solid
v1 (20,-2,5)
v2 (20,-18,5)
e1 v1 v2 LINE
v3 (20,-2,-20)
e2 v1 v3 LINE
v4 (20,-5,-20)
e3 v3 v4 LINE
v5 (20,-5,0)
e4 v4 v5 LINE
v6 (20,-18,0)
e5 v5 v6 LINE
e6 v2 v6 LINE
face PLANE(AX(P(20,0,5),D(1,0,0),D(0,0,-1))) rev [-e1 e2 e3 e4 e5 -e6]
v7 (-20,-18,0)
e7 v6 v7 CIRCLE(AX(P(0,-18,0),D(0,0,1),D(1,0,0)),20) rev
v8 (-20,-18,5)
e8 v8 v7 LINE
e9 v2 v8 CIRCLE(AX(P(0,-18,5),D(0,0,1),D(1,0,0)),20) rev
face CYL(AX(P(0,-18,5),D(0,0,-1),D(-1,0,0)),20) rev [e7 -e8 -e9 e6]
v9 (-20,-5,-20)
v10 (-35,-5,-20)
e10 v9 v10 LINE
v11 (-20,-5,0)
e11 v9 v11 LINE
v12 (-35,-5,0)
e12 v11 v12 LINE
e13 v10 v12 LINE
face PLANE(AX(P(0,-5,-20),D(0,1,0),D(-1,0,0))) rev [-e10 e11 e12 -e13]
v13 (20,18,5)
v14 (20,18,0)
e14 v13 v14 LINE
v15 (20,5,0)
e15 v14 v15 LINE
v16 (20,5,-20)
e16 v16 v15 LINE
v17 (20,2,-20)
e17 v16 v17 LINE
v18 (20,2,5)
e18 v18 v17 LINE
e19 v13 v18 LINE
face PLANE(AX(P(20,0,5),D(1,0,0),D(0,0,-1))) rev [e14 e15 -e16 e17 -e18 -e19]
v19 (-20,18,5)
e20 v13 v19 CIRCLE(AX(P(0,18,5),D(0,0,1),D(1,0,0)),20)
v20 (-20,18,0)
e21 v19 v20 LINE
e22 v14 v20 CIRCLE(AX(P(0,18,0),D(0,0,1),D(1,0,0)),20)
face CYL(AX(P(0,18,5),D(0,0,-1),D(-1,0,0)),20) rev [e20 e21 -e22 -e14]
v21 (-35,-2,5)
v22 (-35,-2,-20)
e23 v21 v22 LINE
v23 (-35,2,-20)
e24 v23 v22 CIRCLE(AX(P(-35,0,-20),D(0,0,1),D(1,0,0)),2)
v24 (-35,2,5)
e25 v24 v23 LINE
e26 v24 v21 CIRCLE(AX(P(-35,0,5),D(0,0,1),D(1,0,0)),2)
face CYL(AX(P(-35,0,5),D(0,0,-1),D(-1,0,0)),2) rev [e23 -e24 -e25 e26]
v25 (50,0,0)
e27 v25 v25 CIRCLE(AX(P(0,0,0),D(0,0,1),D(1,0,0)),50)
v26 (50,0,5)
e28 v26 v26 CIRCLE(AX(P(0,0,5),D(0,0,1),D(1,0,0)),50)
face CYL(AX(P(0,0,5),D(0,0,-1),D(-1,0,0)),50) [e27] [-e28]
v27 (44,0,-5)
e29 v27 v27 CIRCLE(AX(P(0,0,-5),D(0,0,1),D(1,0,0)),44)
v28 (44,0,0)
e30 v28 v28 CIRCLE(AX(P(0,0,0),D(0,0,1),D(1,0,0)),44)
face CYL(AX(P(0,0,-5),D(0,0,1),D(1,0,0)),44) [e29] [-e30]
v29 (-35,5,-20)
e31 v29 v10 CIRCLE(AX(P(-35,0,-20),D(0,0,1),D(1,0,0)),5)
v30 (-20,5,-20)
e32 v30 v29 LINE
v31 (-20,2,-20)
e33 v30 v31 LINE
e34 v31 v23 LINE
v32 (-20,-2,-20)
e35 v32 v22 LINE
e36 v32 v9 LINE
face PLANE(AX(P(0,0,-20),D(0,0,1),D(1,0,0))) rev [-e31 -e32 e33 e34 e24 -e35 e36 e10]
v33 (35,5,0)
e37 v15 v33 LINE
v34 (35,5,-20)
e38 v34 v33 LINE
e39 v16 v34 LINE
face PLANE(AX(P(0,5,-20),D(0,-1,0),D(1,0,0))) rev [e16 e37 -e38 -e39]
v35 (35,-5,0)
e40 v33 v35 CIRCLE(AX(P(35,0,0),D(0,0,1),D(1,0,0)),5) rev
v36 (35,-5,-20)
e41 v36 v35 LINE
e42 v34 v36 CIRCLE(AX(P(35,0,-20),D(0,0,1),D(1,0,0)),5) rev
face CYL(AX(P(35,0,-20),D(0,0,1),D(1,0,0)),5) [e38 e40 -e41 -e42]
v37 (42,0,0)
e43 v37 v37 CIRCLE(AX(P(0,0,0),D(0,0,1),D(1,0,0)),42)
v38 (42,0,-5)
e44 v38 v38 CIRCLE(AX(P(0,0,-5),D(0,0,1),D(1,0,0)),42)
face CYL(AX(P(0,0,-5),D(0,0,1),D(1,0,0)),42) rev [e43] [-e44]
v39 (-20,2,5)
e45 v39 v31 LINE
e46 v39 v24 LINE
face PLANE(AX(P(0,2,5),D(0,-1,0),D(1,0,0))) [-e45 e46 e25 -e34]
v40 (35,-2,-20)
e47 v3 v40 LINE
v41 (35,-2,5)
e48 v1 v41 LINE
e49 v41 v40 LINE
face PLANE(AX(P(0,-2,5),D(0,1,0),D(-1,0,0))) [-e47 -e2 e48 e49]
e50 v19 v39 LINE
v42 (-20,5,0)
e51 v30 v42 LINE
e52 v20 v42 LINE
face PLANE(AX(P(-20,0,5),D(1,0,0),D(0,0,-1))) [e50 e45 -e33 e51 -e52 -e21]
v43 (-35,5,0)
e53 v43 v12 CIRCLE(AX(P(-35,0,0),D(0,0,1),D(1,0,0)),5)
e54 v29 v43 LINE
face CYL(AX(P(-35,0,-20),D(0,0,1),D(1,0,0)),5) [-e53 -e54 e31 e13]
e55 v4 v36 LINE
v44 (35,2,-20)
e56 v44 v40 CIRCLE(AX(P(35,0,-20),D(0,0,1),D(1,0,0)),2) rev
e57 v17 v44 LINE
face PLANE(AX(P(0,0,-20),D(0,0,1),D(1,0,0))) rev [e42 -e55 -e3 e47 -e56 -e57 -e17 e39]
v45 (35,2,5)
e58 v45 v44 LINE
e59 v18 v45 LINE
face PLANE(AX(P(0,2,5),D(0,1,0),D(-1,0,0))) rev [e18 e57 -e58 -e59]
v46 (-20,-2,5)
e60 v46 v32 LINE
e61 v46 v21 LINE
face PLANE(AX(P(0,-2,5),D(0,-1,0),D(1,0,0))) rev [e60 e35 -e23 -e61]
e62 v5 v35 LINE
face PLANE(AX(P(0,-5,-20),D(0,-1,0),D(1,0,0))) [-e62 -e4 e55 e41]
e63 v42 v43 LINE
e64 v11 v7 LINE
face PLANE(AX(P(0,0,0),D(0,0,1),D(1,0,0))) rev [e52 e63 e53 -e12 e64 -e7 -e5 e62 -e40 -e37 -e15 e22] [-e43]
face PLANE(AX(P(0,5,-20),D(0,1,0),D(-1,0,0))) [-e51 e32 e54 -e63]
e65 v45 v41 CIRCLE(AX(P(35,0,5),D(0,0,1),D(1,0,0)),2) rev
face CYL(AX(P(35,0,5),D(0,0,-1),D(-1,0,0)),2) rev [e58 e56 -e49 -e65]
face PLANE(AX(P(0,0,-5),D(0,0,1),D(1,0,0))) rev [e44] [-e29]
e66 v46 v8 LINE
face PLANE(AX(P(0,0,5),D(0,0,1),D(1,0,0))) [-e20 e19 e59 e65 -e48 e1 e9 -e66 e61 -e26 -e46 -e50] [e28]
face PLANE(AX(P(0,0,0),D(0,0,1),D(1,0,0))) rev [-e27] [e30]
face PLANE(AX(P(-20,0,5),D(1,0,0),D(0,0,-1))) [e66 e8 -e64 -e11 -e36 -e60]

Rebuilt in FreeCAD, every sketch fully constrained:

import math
import FreeCAD as App
import Part
import Sketcher
from FreeCAD import Vector

doc = App.newDocument("Part")
body = doc.addObject("PartDesign::Body", "Body")

sketch1 = body.newObject("Sketcher::SketchObject", "Sketch")
sketch1.AttachmentSupport = (doc.getObject("XY_Plane"), [""])
sketch1.MapMode = "FlatFace"
sketch1.addGeometry(Part.Circle(Vector(0, 0, 0), Vector(0, 0, 1), 50), False)
sketch1.addGeometry(Part.LineSegment(Vector(20, 2, 0), Vector(35, 2, 0)), False)
sketch1.addGeometry(Part.ArcOfCircle(Part.Circle(Vector(35, 0, 0), Vector(0, 0, 1), 2), math.radians(-90), math.radians(90)), False)
sketch1.addGeometry(Part.LineSegment(Vector(35, -2, 0), Vector(20, -2, 0)), False)
sketch1.addGeometry(Part.LineSegment(Vector(20, -2, 0), Vector(20, -18, 0)), False)
sketch1.addGeometry(Part.ArcOfCircle(Part.Circle(Vector(0, -18, 0), Vector(0, 0, 1), 20), math.radians(180), math.radians(360)), False)
sketch1.addGeometry(Part.LineSegment(Vector(-20, -18, 0), Vector(-20, -2, 0)), False)
sketch1.addGeometry(Part.LineSegment(Vector(-20, -2, 0), Vector(-35, -2, 0)), False)
sketch1.addGeometry(Part.ArcOfCircle(Part.Circle(Vector(-35, 0, 0), Vector(0, 0, 1), 2), math.radians(90), math.radians(270)), False)
sketch1.addGeometry(Part.LineSegment(Vector(-35, 2, 0), Vector(-20, 2, 0)), False)
sketch1.addGeometry(Part.LineSegment(Vector(-20, 2, 0), Vector(-20, 18, 0)), False)
sketch1.addGeometry(Part.ArcOfCircle(Part.Circle(Vector(0, 18, 0), Vector(0, 0, 1), 20), math.radians(0), math.radians(180)), False)
sketch1.addGeometry(Part.LineSegment(Vector(20, 18, 0), Vector(20, 2, 0)), False)
sketch1.addConstraint(Sketcher.Constraint("Tangent", 1, 2, 2, 2))
sketch1.addConstraint(Sketcher.Constraint("Tangent", 2, 1, 3, 1))
sketch1.addConstraint(Sketcher.Constraint("Coincident", 3, 2, 4, 1))
sketch1.addConstraint(Sketcher.Constraint("Tangent", 4, 2, 5, 2))
sketch1.addConstraint(Sketcher.Constraint("Tangent", 5, 1, 6, 1))
sketch1.addConstraint(Sketcher.Constraint("Coincident", 6, 2, 7, 1))
sketch1.addConstraint(Sketcher.Constraint("Tangent", 7, 2, 8, 2))
sketch1.addConstraint(Sketcher.Constraint("Tangent", 8, 1, 9, 1))
sketch1.addConstraint(Sketcher.Constraint("Coincident", 9, 2, 10, 1))
sketch1.addConstraint(Sketcher.Constraint("Tangent", 10, 2, 11, 2))
sketch1.addConstraint(Sketcher.Constraint("Tangent", 11, 1, 12, 1))
sketch1.addConstraint(Sketcher.Constraint("Coincident", 12, 2, 1, 1))
sketch1.addConstraint(Sketcher.Constraint("Horizontal", 1))
sketch1.addConstraint(Sketcher.Constraint("Horizontal", 3))
sketch1.addConstraint(Sketcher.Constraint("Vertical", 4))
sketch1.addConstraint(Sketcher.Constraint("Vertical", 6))
sketch1.addConstraint(Sketcher.Constraint("Horizontal", 7))
sketch1.addConstraint(Sketcher.Constraint("Horizontal", 9))
sketch1.addConstraint(Sketcher.Constraint("Vertical", 10))
sketch1.addConstraint(Sketcher.Constraint("Vertical", 12))
sketch1.addConstraint(Sketcher.Constraint("Coincident", 0, 3, -1, 1))
sketch1.addConstraint(Sketcher.Constraint("Equal", 2, 8))
sketch1.addConstraint(Sketcher.Constraint("Equal", 5, 11))
sketch1.addConstraint(Sketcher.Constraint("Symmetric", 2, 3, 8, 3, -1, 1))
sketch1.addConstraint(Sketcher.Constraint("Symmetric", 5, 3, 11, 3, -1, 1))
sketch1.addConstraint(Sketcher.Constraint("Symmetric", 3, 2, 6, 2, -2))
sketch1.addConstraint(Sketcher.Constraint("Diameter", 0, 100.0))
sketch1.addConstraint(Sketcher.Constraint("Radius", 2, 2.0))
sketch1.addConstraint(Sketcher.Constraint("Radius", 5, 20.0))
sketch1.addConstraint(Sketcher.Constraint("DistanceX", 1, 1, 1, 2, 15.0))
sketch1.addConstraint(Sketcher.Constraint("DistanceY", 4, 2, 4, 1, 16.0))
pad1 = body.newObject("PartDesign::Pad", "Pad")
pad1.Profile = sketch1
pad1.Length = 5

sketch2 = body.newObject("Sketcher::SketchObject", "Sketch001")
sketch2.AttachmentSupport = (doc.getObject("XY_Plane"), [""])
sketch2.MapMode = "FlatFace"
sketch2.AttachmentOffset = App.Placement(Vector(0, 0, -20), App.Rotation())
sketch2.addGeometry(Part.ArcOfCircle(Part.Circle(Vector(35, 0, 0), Vector(0, 0, 1), 2), math.radians(0), math.radians(90)), False)
sketch2.addGeometry(Part.ArcOfCircle(Part.Circle(Vector(35, 0, 0), Vector(0, 0, 1), 2), math.radians(-90), math.radians(0)), False)
sketch2.addGeometry(Part.LineSegment(Vector(35, -2, 0), Vector(20, -2, 0)), False)
sketch2.addGeometry(Part.LineSegment(Vector(20, -2, 0), Vector(20, -5, 0)), False)
sketch2.addGeometry(Part.LineSegment(Vector(20, -5, 0), Vector(35, -5, 0)), False)
sketch2.addGeometry(Part.ArcOfCircle(Part.Circle(Vector(35, 0, 0), Vector(0, 0, 1), 5), math.radians(-90), math.radians(0)), False)
sketch2.addGeometry(Part.ArcOfCircle(Part.Circle(Vector(35, 0, 0), Vector(0, 0, 1), 5), math.radians(0), math.radians(90)), False)
sketch2.addGeometry(Part.LineSegment(Vector(35, 5, 0), Vector(20, 5, 0)), False)
sketch2.addGeometry(Part.LineSegment(Vector(20, 5, 0), Vector(20, 2, 0)), False)
sketch2.addGeometry(Part.LineSegment(Vector(20, 2, 0), Vector(35, 2, 0)), False)
sketch2.addGeometry(Part.LineSegment(Vector(-35, -5, 0), Vector(-20, -5, 0)), False)
sketch2.addGeometry(Part.LineSegment(Vector(-20, -5, 0), Vector(-20, -2, 0)), False)
sketch2.addGeometry(Part.LineSegment(Vector(-20, -2, 0), Vector(-35, -2, 0)), False)
sketch2.addGeometry(Part.ArcOfCircle(Part.Circle(Vector(-35, 0, 0), Vector(0, 0, 1), 2), math.radians(90), math.radians(270)), False)
sketch2.addGeometry(Part.LineSegment(Vector(-35, 2, 0), Vector(-20, 2, 0)), False)
sketch2.addGeometry(Part.LineSegment(Vector(-20, 2, 0), Vector(-20, 5, 0)), False)
sketch2.addGeometry(Part.LineSegment(Vector(-20, 5, 0), Vector(-35, 5, 0)), False)
sketch2.addGeometry(Part.ArcOfCircle(Part.Circle(Vector(-35, 0, 0), Vector(0, 0, 1), 5), math.radians(90), math.radians(270)), False)
sketch2.addConstraint(Sketcher.Constraint("Tangent", 0, 1, 1, 2))
sketch2.addConstraint(Sketcher.Constraint("Tangent", 1, 1, 2, 1))
sketch2.addConstraint(Sketcher.Constraint("Coincident", 2, 2, 3, 1))
sketch2.addConstraint(Sketcher.Constraint("Coincident", 3, 2, 4, 1))
sketch2.addConstraint(Sketcher.Constraint("Tangent", 4, 2, 5, 1))
sketch2.addConstraint(Sketcher.Constraint("Tangent", 5, 2, 6, 1))
sketch2.addConstraint(Sketcher.Constraint("Tangent", 6, 2, 7, 1))
sketch2.addConstraint(Sketcher.Constraint("Coincident", 7, 2, 8, 1))
sketch2.addConstraint(Sketcher.Constraint("Coincident", 8, 2, 9, 1))
sketch2.addConstraint(Sketcher.Constraint("Tangent", 9, 2, 0, 2))
sketch2.addConstraint(Sketcher.Constraint("Coincident", 10, 2, 11, 1))
sketch2.addConstraint(Sketcher.Constraint("Coincident", 11, 2, 12, 1))
sketch2.addConstraint(Sketcher.Constraint("Tangent", 12, 2, 13, 2))
sketch2.addConstraint(Sketcher.Constraint("Tangent", 13, 1, 14, 1))
sketch2.addConstraint(Sketcher.Constraint("Coincident", 14, 2, 15, 1))
sketch2.addConstraint(Sketcher.Constraint("Coincident", 15, 2, 16, 1))
sketch2.addConstraint(Sketcher.Constraint("Tangent", 16, 2, 17, 1))
sketch2.addConstraint(Sketcher.Constraint("Tangent", 17, 2, 10, 1))
sketch2.addConstraint(Sketcher.Constraint("Horizontal", 2))
sketch2.addConstraint(Sketcher.Constraint("Vertical", 3))
sketch2.addConstraint(Sketcher.Constraint("Horizontal", 4))
sketch2.addConstraint(Sketcher.Constraint("Horizontal", 7))
sketch2.addConstraint(Sketcher.Constraint("Vertical", 8))
sketch2.addConstraint(Sketcher.Constraint("Horizontal", 9))
sketch2.addConstraint(Sketcher.Constraint("Horizontal", 10))
sketch2.addConstraint(Sketcher.Constraint("Vertical", 11))
sketch2.addConstraint(Sketcher.Constraint("Horizontal", 12))
sketch2.addConstraint(Sketcher.Constraint("Horizontal", 14))
sketch2.addConstraint(Sketcher.Constraint("Vertical", 15))
sketch2.addConstraint(Sketcher.Constraint("Horizontal", 16))
sketch2.addConstraint(Sketcher.Constraint("Coincident", 5, 3, 0, 3))
sketch2.addConstraint(Sketcher.Constraint("Coincident", 17, 3, 13, 3))
sketch2.addConstraint(Sketcher.Constraint("Equal", 0, 1))
sketch2.addConstraint(Sketcher.Constraint("Equal", 5, 6))
sketch2.addConstraint(Sketcher.Constraint("Equal", 1, 13))
sketch2.addConstraint(Sketcher.Constraint("Equal", 6, 17))
sketch2.addConstraint(Sketcher.Constraint("Symmetric", 0, 3, 13, 3, -1, 1))
sketch2.addConstraint(Sketcher.Constraint("Symmetric", 3, 2, 10, 2, -2))
sketch2.addConstraint(Sketcher.Constraint("PointOnObject", 0, 1, -1))
sketch2.addConstraint(Sketcher.Constraint("PointOnObject", 5, 2, -1))
sketch2.addConstraint(Sketcher.Constraint("Vertical", 3, 2, 7, 2))
sketch2.addConstraint(Sketcher.Constraint("Vertical", 11, 2, 14, 2))
sketch2.addConstraint(Sketcher.Constraint("Radius", 0, 2.0))
sketch2.addConstraint(Sketcher.Constraint("Radius", 5, 5.0))
sketch2.addConstraint(Sketcher.Constraint("DistanceX", 2, 2, 2, 1, 15.0))
sketch2.addConstraint(Sketcher.Constraint("DistanceX", -1, 1, 0, 3, 35.0))
pad2 = body.newObject("PartDesign::Pad", "Pad001")
pad2.Profile = sketch2
pad2.Length = 20

sketch3 = body.newObject("Sketcher::SketchObject", "Sketch002")
sketch3.AttachmentSupport = (doc.getObject("XY_Plane"), [""])
sketch3.MapMode = "FlatFace"
sketch3.addGeometry(Part.Circle(Vector(0, 0, 0), Vector(0, 0, 1), 44), False)
sketch3.addGeometry(Part.Circle(Vector(0, 0, 0), Vector(0, 0, 1), 42), False)
sketch3.addConstraint(Sketcher.Constraint("Coincident", 0, 3, -1, 1))
sketch3.addConstraint(Sketcher.Constraint("Coincident", 1, 3, -1, 1))
sketch3.addConstraint(Sketcher.Constraint("Diameter", 0, 88.0))
sketch3.addConstraint(Sketcher.Constraint("Diameter", 1, 84.0))
pad3 = body.newObject("PartDesign::Pad", "Pad002")
pad3.Profile = sketch3
pad3.Length = 5
pad3.Reversed = True

doc.recompute()
